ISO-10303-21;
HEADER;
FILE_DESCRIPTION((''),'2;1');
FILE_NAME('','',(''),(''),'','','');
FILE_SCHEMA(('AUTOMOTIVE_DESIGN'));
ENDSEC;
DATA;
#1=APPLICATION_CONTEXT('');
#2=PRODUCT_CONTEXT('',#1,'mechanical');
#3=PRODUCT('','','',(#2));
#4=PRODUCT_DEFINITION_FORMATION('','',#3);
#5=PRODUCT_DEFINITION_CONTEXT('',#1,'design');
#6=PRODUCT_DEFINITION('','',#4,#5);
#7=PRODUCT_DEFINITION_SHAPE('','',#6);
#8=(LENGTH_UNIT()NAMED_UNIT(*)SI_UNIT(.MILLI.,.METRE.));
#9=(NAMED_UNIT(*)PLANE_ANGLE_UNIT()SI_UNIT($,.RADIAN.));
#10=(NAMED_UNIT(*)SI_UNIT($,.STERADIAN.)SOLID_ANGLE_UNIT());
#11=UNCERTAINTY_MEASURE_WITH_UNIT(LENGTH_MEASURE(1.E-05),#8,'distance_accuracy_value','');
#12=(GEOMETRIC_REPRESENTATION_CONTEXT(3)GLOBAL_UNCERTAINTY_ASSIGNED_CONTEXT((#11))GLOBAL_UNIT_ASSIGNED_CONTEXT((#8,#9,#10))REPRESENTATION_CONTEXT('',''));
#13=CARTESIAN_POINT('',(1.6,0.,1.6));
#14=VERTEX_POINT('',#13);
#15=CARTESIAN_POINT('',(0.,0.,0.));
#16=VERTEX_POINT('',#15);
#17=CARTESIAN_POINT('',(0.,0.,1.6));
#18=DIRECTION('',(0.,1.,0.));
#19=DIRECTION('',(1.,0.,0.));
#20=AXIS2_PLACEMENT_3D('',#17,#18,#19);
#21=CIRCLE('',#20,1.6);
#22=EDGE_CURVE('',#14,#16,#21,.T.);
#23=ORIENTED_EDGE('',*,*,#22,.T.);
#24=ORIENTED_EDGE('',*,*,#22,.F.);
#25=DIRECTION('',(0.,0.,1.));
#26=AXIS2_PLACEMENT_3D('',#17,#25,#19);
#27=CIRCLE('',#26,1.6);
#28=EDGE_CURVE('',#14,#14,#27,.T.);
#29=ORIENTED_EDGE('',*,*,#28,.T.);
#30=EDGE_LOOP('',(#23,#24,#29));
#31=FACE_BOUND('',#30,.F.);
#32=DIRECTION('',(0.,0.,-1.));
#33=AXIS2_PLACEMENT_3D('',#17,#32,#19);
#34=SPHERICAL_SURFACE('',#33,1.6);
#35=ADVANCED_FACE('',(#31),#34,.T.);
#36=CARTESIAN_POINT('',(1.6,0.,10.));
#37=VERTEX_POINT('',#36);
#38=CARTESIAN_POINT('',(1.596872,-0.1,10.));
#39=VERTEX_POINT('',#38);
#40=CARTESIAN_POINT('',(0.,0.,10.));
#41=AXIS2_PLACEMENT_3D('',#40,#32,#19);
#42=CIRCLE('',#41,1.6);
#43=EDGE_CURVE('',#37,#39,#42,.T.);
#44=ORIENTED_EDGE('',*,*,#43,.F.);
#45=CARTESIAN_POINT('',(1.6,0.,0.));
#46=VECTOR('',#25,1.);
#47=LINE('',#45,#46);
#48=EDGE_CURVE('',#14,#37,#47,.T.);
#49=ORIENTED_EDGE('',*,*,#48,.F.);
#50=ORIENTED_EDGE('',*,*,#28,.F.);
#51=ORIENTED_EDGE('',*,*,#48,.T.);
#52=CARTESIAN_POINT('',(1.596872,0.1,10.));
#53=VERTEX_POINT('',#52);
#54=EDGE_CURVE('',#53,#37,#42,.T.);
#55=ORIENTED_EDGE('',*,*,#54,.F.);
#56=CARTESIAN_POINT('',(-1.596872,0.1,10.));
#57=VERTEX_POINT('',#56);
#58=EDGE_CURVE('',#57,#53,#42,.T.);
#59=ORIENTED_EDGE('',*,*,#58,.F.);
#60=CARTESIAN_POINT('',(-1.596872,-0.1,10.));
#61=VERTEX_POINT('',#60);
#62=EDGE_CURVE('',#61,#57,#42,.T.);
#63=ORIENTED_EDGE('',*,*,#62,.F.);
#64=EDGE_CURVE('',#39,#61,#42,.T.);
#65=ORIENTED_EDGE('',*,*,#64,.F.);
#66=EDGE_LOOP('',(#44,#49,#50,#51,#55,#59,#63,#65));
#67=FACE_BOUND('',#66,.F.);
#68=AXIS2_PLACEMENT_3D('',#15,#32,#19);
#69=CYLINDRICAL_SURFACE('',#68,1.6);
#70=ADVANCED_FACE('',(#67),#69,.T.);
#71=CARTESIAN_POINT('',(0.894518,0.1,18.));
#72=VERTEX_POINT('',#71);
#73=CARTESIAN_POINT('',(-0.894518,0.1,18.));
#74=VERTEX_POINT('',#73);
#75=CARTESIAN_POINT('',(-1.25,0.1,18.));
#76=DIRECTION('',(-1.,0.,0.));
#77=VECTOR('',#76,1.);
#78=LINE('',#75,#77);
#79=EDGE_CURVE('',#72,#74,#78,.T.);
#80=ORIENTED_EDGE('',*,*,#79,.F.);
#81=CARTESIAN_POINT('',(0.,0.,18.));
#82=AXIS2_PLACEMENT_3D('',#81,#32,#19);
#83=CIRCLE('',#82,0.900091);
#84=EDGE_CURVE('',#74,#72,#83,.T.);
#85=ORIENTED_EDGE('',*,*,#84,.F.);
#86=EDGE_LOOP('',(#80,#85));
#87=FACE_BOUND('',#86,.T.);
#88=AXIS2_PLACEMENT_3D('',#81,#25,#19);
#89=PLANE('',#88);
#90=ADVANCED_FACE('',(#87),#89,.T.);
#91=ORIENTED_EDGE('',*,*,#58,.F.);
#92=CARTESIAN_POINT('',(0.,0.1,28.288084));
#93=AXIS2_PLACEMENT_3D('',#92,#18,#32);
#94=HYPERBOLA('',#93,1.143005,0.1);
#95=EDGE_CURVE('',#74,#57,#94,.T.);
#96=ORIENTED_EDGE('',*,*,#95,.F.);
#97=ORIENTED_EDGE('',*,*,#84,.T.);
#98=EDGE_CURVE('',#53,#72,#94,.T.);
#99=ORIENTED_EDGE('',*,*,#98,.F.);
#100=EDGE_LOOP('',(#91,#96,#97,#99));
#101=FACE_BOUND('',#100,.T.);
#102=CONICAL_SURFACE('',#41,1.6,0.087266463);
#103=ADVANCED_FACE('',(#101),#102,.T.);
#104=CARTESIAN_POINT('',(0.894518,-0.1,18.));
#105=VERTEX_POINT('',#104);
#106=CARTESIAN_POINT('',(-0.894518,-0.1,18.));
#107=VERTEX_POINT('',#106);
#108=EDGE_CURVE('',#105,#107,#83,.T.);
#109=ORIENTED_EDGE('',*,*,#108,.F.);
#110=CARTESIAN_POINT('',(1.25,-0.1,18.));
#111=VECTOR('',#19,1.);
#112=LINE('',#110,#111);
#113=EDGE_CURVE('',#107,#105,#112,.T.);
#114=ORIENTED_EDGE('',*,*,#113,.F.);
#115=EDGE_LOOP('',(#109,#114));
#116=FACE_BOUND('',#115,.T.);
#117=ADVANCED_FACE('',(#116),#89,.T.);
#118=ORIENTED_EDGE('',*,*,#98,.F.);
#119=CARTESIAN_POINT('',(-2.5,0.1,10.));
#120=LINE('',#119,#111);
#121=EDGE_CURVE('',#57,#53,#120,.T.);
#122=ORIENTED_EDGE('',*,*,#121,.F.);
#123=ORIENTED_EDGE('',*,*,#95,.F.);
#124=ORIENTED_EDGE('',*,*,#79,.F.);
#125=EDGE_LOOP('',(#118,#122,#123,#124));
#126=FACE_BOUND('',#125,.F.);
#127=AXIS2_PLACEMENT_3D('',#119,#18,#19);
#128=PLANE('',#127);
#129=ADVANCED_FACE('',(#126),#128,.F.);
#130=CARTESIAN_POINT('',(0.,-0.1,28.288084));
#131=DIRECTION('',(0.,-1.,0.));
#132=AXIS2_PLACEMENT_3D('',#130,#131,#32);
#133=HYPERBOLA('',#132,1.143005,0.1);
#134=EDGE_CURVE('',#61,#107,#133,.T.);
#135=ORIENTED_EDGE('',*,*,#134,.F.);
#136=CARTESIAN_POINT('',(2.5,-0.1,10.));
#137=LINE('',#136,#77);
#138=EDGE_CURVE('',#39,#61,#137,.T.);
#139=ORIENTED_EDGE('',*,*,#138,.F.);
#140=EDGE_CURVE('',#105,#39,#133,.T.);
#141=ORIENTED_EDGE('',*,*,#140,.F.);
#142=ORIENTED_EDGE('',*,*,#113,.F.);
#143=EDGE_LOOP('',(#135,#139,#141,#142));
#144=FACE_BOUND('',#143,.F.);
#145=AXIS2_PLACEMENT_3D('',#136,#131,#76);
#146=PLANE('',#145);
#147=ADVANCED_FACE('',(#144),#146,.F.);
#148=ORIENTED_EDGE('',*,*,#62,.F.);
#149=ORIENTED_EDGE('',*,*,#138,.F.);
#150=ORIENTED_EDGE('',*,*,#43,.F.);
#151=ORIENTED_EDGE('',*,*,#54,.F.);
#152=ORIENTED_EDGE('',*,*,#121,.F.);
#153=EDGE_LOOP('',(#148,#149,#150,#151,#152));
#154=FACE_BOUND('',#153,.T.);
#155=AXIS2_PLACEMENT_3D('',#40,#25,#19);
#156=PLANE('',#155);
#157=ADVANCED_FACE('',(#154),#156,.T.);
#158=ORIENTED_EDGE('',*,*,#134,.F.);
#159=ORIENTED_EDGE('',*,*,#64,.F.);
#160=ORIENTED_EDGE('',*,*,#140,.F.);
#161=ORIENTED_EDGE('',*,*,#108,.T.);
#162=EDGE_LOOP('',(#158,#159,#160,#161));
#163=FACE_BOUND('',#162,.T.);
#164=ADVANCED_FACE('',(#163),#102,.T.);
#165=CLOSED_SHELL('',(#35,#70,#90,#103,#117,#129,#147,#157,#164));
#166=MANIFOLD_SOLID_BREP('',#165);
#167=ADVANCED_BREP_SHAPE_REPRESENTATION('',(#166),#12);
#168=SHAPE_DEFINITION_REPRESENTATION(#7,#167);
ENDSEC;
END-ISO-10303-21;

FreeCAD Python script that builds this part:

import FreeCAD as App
import Part
import Sketcher
Q = App.Units.Quantity


def edges_at(feature, points):
    """Names of the edges that pass closest to the given points."""
    edges = feature.Shape.Edges
    near = lambda p: min(range(len(edges)), key=lambda i: edges[i].distToShape(Part.Vertex(*p))[0])
    return sorted({f"Edge{near(p) + 1}" for p in points})

doc = App.newDocument("Part")
body = doc.addObject("PartDesign::Body", "Body")

# Sketch on XY plane
sketch1 = body.newObject("Sketcher::SketchObject", "Sketch")
sketch1.AttachmentSupport = (doc.getObject("XY_Plane"), [""])
sketch1.MapMode = "FlatFace"
sketch1.addGeometry(Part.Circle(App.Vector(0, 0, 0), App.Vector(0, 0, 1), 1.6), False)
sketch1.addConstraint([
    Sketcher.Constraint("Coincident", 0, 3, -1, 1),
    Sketcher.Constraint("Diameter", 0, Q("3.2 mm")),
])
pad1 = body.newObject("PartDesign::Pad", "Pad")
pad1.Profile = sketch1
pad1.Length = 10

# Sketch on XY plane
sketch2 = body.newObject("Sketcher::SketchObject", "Sketch001")
sketch2.AttachmentSupport = (doc.getObject("XY_Plane"), [""])
sketch2.MapMode = "FlatFace"
sketch2.AttachmentOffset = App.Placement(App.Vector(0, 0, 10), App.Rotation())
sketch2.addGeometry(Part.Circle(App.Vector(0, 0, 0), App.Vector(0, 0, 1), 1.6), False)
sketch2.addConstraint([
    Sketcher.Constraint("Coincident", 0, 3, -1, 1),
    Sketcher.Constraint("Diameter", 0, Q("3.2 mm")),
])
pad2 = body.newObject("PartDesign::Pad", "Pad001")
pad2.Profile = sketch2
pad2.Length = 8
pad2.TaperAngle = -5

# Sketch on XY plane
sketch3 = body.newObject("Sketcher::SketchObject", "Sketch002")
sketch3.AttachmentSupport = (doc.getObject("XY_Plane"), [""])
sketch3.MapMode = "FlatFace"
sketch3.AttachmentOffset = App.Placement(App.Vector(0, 0, 10), App.Rotation())
sketch3.addGeometry([
    Part.LineSegment(App.Vector(-2.5, -0.1, 0), App.Vector(2.5, -0.1, 0)),
    Part.LineSegment(App.Vector(2.5, -0.1, 0), App.Vector(2.5, 0.1, 0)),
    Part.LineSegment(App.Vector(2.5, 0.1, 0), App.Vector(-2.5, 0.1, 0)),
    Part.LineSegment(App.Vector(-2.5, 0.1, 0), App.Vector(-2.5, -0.1, 0)),
], False)
sketch3.addConstraint([
    Sketcher.Constraint("Coincident", 0, 2, 1, 1),
    Sketcher.Constraint("Coincident", 1, 2, 2, 1),
    Sketcher.Constraint("Coincident", 2, 2, 3, 1),
    Sketcher.Constraint("Coincident", 3, 2, 0, 1),
    Sketcher.Constraint("Horizontal", 0),
    Sketcher.Constraint("Vertical", 1),
    Sketcher.Constraint("Horizontal", 2),
    Sketcher.Constraint("Vertical", 3),
    Sketcher.Constraint("Symmetric", 0, 2, 2, 2, -1, 1),
    Sketcher.Constraint("DistanceX", 0, 1, 0, 2, Q("5 mm")),
    Sketcher.Constraint("DistanceY", 1, 1, 1, 2, Q("0.2 mm")),
])
pocket1 = body.newObject("PartDesign::Pocket", "Pocket")
pocket1.Profile = sketch3
pocket1.Type = "ThroughAll"
pocket1.Reversed = True
doc.recompute()

fillet = body.newObject("PartDesign::Fillet", "Fillet")
fillet.Base = (pocket1, edges_at(pocket1, [(-1.6, 0, 0)]))
fillet.Radius = 1.6

doc.recompute()
